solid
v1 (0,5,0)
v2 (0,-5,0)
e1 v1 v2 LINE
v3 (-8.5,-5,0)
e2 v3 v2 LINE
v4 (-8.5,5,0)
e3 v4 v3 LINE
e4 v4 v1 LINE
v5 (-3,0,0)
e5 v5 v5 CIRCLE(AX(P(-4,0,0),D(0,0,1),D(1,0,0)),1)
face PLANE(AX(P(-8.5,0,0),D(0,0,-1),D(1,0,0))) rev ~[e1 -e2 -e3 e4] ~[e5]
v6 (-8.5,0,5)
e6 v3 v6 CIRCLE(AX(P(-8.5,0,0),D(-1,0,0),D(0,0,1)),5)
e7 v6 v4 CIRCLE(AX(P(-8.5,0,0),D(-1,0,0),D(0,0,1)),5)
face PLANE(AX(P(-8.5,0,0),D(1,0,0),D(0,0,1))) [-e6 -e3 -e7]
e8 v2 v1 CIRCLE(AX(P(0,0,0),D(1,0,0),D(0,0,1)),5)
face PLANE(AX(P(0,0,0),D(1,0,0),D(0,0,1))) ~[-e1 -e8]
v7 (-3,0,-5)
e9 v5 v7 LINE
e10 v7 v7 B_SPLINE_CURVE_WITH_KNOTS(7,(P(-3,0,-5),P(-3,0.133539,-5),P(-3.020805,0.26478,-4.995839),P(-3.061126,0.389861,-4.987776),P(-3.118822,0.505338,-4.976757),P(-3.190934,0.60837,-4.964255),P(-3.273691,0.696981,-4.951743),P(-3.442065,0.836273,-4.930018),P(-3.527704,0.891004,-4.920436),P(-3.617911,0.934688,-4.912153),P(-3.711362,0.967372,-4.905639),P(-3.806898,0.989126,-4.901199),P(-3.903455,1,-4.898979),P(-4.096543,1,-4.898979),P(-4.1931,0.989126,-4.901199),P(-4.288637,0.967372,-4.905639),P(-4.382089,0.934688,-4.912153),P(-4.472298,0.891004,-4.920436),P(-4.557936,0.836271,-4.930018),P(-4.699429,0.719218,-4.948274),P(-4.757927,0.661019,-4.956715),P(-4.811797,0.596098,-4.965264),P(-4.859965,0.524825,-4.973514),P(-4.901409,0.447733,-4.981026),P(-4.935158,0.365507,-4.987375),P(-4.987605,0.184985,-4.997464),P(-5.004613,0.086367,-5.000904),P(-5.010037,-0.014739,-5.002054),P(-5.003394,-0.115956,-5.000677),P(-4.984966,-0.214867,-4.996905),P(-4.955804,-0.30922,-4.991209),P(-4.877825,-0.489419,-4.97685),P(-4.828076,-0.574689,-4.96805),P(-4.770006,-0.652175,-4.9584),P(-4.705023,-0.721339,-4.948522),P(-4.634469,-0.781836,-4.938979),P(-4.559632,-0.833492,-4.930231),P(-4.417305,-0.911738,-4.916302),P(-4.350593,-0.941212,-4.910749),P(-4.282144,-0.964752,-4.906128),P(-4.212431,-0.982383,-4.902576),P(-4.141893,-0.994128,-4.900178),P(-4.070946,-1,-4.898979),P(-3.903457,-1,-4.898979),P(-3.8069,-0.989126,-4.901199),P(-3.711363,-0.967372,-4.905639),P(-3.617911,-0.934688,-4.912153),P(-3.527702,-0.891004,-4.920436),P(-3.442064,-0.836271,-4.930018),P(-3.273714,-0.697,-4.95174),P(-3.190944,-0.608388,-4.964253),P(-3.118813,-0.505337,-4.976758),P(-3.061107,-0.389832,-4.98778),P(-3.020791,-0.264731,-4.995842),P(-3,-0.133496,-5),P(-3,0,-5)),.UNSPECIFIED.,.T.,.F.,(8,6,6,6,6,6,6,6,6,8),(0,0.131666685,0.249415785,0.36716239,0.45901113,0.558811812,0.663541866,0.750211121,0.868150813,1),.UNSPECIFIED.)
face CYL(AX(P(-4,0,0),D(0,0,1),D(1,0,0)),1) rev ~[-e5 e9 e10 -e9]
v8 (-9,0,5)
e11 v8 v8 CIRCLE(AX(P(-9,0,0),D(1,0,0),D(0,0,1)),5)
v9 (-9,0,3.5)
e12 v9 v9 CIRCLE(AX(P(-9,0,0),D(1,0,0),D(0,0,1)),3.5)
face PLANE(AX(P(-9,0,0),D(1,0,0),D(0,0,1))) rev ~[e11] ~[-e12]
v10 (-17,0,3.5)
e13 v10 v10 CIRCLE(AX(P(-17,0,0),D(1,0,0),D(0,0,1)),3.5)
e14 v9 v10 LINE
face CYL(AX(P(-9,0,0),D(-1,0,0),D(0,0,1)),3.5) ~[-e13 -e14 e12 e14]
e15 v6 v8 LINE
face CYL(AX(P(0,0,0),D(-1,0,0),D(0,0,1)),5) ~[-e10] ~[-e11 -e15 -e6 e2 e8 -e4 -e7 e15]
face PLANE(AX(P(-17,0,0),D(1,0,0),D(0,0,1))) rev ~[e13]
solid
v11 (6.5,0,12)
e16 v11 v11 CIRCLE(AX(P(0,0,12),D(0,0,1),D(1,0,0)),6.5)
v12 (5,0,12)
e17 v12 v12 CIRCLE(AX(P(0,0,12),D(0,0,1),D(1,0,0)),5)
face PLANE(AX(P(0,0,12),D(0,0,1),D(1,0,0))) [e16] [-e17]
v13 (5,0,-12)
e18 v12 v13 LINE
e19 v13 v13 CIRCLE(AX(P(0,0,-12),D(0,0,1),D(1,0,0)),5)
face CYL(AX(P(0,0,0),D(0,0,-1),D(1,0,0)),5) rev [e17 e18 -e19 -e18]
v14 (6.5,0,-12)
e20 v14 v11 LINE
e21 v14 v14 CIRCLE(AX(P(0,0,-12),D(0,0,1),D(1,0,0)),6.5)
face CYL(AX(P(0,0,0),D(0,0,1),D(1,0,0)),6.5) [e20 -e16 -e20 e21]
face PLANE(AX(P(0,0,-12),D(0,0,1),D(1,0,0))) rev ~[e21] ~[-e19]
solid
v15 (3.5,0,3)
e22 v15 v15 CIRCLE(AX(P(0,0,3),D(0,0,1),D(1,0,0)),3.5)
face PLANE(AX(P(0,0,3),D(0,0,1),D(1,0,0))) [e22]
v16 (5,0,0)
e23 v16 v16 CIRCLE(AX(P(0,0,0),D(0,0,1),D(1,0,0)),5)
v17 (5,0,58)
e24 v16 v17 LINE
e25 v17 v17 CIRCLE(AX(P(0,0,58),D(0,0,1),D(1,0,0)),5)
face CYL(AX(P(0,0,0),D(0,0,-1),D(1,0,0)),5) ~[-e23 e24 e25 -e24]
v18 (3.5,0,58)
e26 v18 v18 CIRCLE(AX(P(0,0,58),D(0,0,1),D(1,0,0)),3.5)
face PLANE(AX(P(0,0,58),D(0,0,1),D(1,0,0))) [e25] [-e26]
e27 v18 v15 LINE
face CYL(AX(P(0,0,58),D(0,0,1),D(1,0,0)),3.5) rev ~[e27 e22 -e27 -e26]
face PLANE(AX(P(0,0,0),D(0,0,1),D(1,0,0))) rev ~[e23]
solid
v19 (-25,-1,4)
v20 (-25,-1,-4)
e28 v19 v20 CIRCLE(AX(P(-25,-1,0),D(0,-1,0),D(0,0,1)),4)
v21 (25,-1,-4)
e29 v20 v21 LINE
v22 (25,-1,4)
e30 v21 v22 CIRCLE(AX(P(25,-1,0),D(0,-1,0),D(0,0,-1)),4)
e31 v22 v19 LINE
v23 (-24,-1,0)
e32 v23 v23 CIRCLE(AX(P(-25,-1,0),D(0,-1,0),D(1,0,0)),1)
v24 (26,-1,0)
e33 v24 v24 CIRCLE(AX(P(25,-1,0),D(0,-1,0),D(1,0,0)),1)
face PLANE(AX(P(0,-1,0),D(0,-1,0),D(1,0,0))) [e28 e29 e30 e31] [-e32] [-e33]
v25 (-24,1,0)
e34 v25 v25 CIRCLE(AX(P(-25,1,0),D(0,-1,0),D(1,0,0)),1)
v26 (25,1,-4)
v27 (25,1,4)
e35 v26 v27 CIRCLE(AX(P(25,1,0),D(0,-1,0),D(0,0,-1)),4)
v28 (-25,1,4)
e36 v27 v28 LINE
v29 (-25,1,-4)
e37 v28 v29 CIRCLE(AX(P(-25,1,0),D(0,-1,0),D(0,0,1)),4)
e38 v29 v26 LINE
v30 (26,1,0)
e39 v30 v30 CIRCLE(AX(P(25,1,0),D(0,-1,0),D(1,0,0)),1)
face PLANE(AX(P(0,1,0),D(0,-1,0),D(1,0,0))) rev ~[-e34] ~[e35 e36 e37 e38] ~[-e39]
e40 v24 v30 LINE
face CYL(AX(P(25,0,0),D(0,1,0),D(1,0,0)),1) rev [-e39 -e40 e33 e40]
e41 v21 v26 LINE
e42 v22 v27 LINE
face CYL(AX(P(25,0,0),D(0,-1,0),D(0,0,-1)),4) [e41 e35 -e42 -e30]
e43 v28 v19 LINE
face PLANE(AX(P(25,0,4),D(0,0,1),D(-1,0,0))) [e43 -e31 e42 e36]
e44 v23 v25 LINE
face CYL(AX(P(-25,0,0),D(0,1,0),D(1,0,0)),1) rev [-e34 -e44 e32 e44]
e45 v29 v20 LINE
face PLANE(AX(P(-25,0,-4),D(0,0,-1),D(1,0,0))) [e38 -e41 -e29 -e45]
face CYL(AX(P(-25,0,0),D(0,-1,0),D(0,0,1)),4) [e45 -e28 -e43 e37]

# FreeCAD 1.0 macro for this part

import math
import FreeCAD as App
import Part
import Sketcher


def add_polygon(sketch, points):
    """Adds a closed chain of lines whose ends are joined by coincident constraints."""
    first, n = sketch.GeometryCount, len(points)
    for a, b in zip(points, points[1:] + points[:1]):
        sketch.addGeometry(Part.LineSegment(App.Vector(*a, 0), App.Vector(*b, 0)), False)
    for i in range(n):
        sketch.addConstraint(Sketcher.Constraint("Coincident", first + i, 2, first + (i + 1) % n, 1))

doc = App.newDocument("Part")
body = doc.addObject("PartDesign::Body", "Body")

# Sketch on XY plane
sketch1 = doc.addObject("Sketcher::SketchObject", "Sketch")
body.addObject(sketch1)
sketch1.AttachmentSupport = (doc.XY_Plane, [""])
sketch1.MapMode = "FlatFace"
sketch1.addGeometry(Part.Circle(App.Vector(0, 0, 0), App.Vector(0, 0, 1), 5), False)
sketch1.addConstraint(Sketcher.Constraint("Coincident", 0, 3, -1, 1))
sketch1.addConstraint(Sketcher.Constraint("Diameter", 0, 10.0))
pad1 = doc.addObject("PartDesign::Pad", "Pad")
body.addObject(pad1)
pad1.Profile = sketch1
pad1.Length = 58

# Sketch on XY plane
sketch2 = doc.addObject("Sketcher::SketchObject", "Sketch001")
body.addObject(sketch2)
sketch2.AttachmentSupport = (doc.XY_Plane, [""])
sketch2.MapMode = "FlatFace"
sketch2.AttachmentOffset = App.Placement(App.Vector(0, 0, 58), App.Rotation())
sketch2.addGeometry(Part.Circle(App.Vector(0, 0, 0), App.Vector(0, 0, 1), 3.5), False)
sketch2.addConstraint(Sketcher.Constraint("Coincident", 0, 3, -1, 1))
sketch2.addConstraint(Sketcher.Constraint("Diameter", 0, 7.0))
pocket1 = doc.addObject("PartDesign::Pocket", "Pocket")
body.addObject(pocket1)
pocket1.Profile = sketch2
pocket1.Length = 55
body2 = doc.addObject("PartDesign::Body", "Body001")

# Sketch on XZ plane
sketch3 = doc.addObject("Sketcher::SketchObject", "Sketch002")
body2.addObject(sketch3)
sketch3.AttachmentSupport = (doc.getObject("XZ_Plane001"), [""])
sketch3.MapMode = "FlatFace"
sketch3.addGeometry(Part.LineSegment(App.Vector(25, 4, 0), App.Vector(-25, 4, 0)), False)
sketch3.addGeometry(Part.ArcOfCircle(Part.Circle(App.Vector(-25, 0, 0), App.Vector(0, 0, 1), 4), math.radians(90), math.radians(270)), False)
sketch3.addGeometry(Part.LineSegment(App.Vector(-25, -4, 0), App.Vector(25, -4, 0)), False)
sketch3.addGeometry(Part.ArcOfCircle(Part.Circle(App.Vector(25, 0, 0), App.Vector(0, 0, 1), 4), math.radians(-90), math.radians(90)), False)
sketch3.addGeometry(Part.Circle(App.Vector(-25, 0, 0), App.Vector(0, 0, 1), 1), False)
sketch3.addGeometry(Part.Circle(App.Vector(25, 0, 0), App.Vector(0, 0, 1), 1), False)
sketch3.addConstraint(Sketcher.Constraint("Tangent", 0, 2, 1, 1))
sketch3.addConstraint(Sketcher.Constraint("Tangent", 1, 2, 2, 1))
sketch3.addConstraint(Sketcher.Constraint("Tangent", 2, 2, 3, 1))
sketch3.addConstraint(Sketcher.Constraint("Tangent", 3, 2, 0, 1))
sketch3.addConstraint(Sketcher.Constraint("Horizontal", 0))
sketch3.addConstraint(Sketcher.Constraint("Horizontal", 2))
sketch3.addConstraint(Sketcher.Constraint("Coincident", 4, 3, 1, 3))
sketch3.addConstraint(Sketcher.Constraint("Coincident", 5, 3, 3, 3))
sketch3.addConstraint(Sketcher.Constraint("Equal", 4, 5))
sketch3.addConstraint(Sketcher.Constraint("Symmetric", 1, 3, 3, 3, -1, 1))
sketch3.addConstraint(Sketcher.Constraint("Diameter", 4, 2.0))
sketch3.addConstraint(Sketcher.Constraint("Radius", 1, 4.0))
sketch3.addConstraint(Sketcher.Constraint("DistanceX", 0, 2, 0, 1, 50.0))
pad2 = doc.addObject("PartDesign::Pad", "Pad001")
body2.addObject(pad2)
pad2.Profile = sketch3
pad2.Length = 2
pad2.Midplane = True
body3 = doc.addObject("PartDesign::Body", "Body002")

# Sketch on XZ plane
sketch4 = doc.addObject("Sketcher::SketchObject", "Sketch003")
body3.addObject(sketch4)
sketch4.AttachmentSupport = (doc.getObject("XZ_Plane002"), [""])
sketch4.MapMode = "FlatFace"
add_polygon(sketch4, [(-17, 0), (0, 0), (0, 5), (-9, 5), (-9, 3.5), (-17, 3.5)])  # lines 0-5
sketch4.addConstraint(Sketcher.Constraint("Horizontal", 0))
sketch4.addConstraint(Sketcher.Constraint("Vertical", 1))
sketch4.addConstraint(Sketcher.Constraint("Horizontal", 2))
sketch4.addConstraint(Sketcher.Constraint("Vertical", 3))
sketch4.addConstraint(Sketcher.Constraint("Horizontal", 4))
sketch4.addConstraint(Sketcher.Constraint("Vertical", 5))
sketch4.addConstraint(Sketcher.Constraint("Coincident", 0, 2, -1, 1))
sketch4.addConstraint(Sketcher.Constraint("DistanceX", 0, 1, 0, 2, 17.0))
sketch4.addConstraint(Sketcher.Constraint("DistanceX", 2, 2, 2, 1, 9.0))
sketch4.addConstraint(Sketcher.Constraint("DistanceY", 1, 1, 1, 2, 5.0))
sketch4.addConstraint(Sketcher.Constraint("DistanceY", 3, 2, 3, 1, 1.5))
revolution = doc.addObject("PartDesign::Revolution", "Revolution")
body3.addObject(revolution)
revolution.Profile = sketch4
revolution.ReferenceAxis = (sketch4, ["H_Axis"])
revolution.Angle = 360

# Sketch on XZ plane
sketch5 = doc.addObject("Sketcher::SketchObject", "Sketch004")
body3.addObject(sketch5)
sketch5.AttachmentSupport = (doc.getObject("XZ_Plane002"), [""])
sketch5.MapMode = "FlatFace"
add_polygon(sketch5, [(-8, 6), (-8, 0), (0, 0), (0, 6)])  # lines 0-3
sketch5.addConstraint(Sketcher.Constraint("Vertical", 0))
sketch5.addConstraint(Sketcher.Constraint("Horizontal", 1))
sketch5.addConstraint(Sketcher.Constraint("Vertical", 2))
sketch5.addConstraint(Sketcher.Constraint("Horizontal", 3))
sketch5.addConstraint(Sketcher.Constraint("Coincident", 1, 2, -1, 1))
sketch5.addConstraint(Sketcher.Constraint("DistanceY", 0, 2, 0, 1, 6.0))
sketch5.addConstraint(Sketcher.Constraint("DistanceX", 1, 1, 1, 2, 8.5))
pocket2 = doc.addObject("PartDesign::Pocket", "Pocket001")
body3.addObject(pocket2)
pocket2.Profile = sketch5
pocket2.Length = 10
pocket2.Midplane = True

# Sketch on XY plane
sketch6 = doc.addObject("Sketcher::SketchObject", "Sketch005")
body3.addObject(sketch6)
sketch6.AttachmentSupport = (doc.getObject("XY_Plane002"), [""])
sketch6.MapMode = "FlatFace"
sketch6.addGeometry(Part.Circle(App.Vector(-4, 0, 0), App.Vector(0, 0, 1), 1), False)
sketch6.addConstraint(Sketcher.Constraint("PointOnObject", 0, 3, -1))
sketch6.addConstraint(Sketcher.Constraint("Diameter", 0, 2.0))
sketch6.addConstraint(Sketcher.Constraint("DistanceX", 0, 3, -1, 1, 4.0))
pocket3 = doc.addObject("PartDesign::Pocket", "Pocket002")
body3.addObject(pocket3)
pocket3.Profile = sketch6
pocket3.Type = "ThroughAll"
body4 = doc.addObject("PartDesign::Body", "Body003")

# Sketch on XY plane
sketch7 = doc.addObject("Sketcher::SketchObject", "Sketch006")
body4.addObject(sketch7)
sketch7.AttachmentSupport = (doc.getObject("XY_Plane003"), [""])
sketch7.MapMode = "FlatFace"
sketch7.addGeometry(Part.Circle(App.Vector(0, 0, 0), App.Vector(0, 0, 1), 6), False)
sketch7.addGeometry(Part.Circle(App.Vector(0, 0, 0), App.Vector(0, 0, 1), 5), False)
sketch7.addConstraint(Sketcher.Constraint("Coincident", 0, 3, -1, 1))
sketch7.addConstraint(Sketcher.Constraint("Coincident", 1, 3, -1, 1))
sketch7.addConstraint(Sketcher.Constraint("Diameter", 0, 13.0))
sketch7.addConstraint(Sketcher.Constraint("Diameter", 1, 10.0))
pad3 = doc.addObject("PartDesign::Pad", "Pad002")
body4.addObject(pad3)
pad3.Profile = sketch7
pad3.Length = 24
pad3.Midplane = True

doc.recompute()
